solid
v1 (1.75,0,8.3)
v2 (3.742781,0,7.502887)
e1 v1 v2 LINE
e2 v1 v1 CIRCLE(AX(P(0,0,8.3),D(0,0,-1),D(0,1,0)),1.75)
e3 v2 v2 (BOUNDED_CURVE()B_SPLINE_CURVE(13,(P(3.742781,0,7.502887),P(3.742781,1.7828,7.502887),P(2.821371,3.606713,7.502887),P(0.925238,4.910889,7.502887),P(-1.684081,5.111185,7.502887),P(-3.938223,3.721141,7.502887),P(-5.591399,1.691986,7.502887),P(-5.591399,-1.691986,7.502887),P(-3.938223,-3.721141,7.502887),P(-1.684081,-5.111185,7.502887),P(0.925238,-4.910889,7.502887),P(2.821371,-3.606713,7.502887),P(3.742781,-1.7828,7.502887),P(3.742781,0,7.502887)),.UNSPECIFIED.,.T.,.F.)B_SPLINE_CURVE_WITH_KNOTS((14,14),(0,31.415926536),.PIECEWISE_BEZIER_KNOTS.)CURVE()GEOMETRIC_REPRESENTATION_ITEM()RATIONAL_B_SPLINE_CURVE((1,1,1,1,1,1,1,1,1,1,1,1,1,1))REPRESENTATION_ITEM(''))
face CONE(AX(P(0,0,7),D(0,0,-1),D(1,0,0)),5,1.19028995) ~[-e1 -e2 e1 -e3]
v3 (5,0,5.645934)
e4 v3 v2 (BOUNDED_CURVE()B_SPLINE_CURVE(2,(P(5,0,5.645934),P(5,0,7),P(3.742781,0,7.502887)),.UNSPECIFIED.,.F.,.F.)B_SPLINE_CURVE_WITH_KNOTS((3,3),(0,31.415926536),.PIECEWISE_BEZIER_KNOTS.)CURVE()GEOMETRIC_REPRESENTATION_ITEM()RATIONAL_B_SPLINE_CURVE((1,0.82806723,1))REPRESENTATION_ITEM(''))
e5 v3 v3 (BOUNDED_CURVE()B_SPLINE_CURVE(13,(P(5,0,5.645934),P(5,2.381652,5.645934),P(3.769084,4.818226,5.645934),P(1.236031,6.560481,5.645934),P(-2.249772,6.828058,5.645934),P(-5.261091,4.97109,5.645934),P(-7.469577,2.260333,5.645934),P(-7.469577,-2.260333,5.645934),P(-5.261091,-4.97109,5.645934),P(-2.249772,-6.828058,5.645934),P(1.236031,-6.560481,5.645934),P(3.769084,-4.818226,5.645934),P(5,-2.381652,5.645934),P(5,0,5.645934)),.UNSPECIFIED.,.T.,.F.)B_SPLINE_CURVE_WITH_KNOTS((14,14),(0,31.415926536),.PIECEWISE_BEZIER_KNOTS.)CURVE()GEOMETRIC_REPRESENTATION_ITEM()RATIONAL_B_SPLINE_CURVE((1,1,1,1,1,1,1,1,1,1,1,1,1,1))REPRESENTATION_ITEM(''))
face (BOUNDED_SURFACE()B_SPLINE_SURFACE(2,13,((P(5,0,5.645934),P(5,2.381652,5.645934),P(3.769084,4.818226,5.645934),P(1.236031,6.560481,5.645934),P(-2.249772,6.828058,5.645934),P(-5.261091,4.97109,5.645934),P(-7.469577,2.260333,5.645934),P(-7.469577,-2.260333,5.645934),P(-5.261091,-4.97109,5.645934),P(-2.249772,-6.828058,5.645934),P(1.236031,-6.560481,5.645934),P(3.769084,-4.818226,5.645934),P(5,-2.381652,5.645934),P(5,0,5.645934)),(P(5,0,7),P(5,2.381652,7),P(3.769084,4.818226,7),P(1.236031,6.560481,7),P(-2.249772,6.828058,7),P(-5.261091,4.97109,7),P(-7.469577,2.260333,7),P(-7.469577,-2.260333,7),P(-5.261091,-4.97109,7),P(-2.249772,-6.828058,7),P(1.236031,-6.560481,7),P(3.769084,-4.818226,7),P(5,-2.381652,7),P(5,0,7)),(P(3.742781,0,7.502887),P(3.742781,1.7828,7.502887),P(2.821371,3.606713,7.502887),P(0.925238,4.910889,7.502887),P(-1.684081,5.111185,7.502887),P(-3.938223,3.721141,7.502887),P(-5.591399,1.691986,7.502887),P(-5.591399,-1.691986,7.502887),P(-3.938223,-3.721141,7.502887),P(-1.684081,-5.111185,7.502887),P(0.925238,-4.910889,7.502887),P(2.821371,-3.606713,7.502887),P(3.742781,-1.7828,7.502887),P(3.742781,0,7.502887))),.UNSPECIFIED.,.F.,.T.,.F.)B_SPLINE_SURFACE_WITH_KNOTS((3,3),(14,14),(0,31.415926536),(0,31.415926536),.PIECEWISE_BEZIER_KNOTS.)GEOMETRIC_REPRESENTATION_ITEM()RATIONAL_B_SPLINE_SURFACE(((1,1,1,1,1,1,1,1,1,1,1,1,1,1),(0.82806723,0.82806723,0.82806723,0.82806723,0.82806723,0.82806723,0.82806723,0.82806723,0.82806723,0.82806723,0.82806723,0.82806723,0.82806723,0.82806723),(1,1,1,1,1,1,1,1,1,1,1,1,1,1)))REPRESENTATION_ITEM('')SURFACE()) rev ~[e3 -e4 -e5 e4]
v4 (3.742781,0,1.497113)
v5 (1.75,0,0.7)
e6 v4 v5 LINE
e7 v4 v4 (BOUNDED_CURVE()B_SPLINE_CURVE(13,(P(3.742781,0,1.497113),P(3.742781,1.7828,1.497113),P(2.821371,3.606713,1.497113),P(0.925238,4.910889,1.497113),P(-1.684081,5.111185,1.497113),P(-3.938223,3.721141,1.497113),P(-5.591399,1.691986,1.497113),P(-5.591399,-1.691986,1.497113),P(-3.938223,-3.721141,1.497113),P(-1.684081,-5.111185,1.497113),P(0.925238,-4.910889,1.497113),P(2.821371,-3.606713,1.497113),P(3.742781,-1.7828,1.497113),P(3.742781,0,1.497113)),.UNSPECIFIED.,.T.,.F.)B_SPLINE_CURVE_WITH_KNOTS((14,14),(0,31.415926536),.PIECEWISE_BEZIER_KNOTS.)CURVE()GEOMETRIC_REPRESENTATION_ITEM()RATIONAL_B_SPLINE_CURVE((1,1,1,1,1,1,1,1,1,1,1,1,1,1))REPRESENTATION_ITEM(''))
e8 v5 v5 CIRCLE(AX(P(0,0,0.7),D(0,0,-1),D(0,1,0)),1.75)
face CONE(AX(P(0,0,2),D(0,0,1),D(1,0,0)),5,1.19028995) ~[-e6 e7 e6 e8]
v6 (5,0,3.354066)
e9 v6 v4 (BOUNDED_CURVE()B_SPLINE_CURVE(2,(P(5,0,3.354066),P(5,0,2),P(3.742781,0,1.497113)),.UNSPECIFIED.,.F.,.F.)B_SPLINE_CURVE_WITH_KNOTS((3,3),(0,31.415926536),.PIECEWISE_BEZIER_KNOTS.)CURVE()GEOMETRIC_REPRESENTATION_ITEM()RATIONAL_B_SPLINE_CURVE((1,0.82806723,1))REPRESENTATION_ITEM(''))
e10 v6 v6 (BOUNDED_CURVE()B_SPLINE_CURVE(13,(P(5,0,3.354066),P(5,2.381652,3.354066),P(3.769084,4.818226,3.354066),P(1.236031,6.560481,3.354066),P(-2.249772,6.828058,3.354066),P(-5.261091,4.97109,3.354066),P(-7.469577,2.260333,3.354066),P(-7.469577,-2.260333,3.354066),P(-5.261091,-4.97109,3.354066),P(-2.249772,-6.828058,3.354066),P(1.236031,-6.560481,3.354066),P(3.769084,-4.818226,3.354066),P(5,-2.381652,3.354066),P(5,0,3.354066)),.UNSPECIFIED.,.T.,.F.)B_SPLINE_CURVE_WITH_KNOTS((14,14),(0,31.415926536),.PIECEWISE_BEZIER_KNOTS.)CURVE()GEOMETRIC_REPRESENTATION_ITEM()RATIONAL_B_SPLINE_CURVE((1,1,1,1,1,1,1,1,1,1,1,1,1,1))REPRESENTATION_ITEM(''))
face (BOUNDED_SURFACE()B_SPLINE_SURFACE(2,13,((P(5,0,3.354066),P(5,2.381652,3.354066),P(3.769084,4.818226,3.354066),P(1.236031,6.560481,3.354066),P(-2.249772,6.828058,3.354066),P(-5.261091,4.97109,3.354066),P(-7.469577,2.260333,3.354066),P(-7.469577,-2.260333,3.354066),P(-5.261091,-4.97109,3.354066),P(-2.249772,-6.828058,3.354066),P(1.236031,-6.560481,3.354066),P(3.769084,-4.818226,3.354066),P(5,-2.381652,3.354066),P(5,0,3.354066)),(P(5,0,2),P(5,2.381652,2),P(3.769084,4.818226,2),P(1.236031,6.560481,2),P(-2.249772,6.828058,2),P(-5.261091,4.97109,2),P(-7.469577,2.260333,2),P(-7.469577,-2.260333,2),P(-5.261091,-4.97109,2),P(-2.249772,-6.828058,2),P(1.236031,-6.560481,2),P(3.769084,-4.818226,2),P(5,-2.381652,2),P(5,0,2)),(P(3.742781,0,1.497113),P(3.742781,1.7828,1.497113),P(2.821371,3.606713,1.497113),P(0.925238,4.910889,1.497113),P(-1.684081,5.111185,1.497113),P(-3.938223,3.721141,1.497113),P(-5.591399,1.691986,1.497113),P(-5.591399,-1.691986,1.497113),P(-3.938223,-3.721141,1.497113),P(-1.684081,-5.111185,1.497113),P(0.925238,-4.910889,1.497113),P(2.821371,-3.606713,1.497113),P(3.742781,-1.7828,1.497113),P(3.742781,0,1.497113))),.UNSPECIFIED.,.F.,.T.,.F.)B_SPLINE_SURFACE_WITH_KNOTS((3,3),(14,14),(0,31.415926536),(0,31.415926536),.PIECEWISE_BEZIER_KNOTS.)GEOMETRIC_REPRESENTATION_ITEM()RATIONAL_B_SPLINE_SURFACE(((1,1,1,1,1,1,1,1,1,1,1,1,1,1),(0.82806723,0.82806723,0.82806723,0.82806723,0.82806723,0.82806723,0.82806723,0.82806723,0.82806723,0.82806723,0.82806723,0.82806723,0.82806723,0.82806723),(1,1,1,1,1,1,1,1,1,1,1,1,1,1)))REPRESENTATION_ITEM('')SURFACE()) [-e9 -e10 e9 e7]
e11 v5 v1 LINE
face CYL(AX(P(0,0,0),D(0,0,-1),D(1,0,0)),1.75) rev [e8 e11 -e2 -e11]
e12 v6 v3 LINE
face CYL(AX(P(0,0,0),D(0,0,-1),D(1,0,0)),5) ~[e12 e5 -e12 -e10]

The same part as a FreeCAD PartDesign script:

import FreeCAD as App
import Part
import Sketcher
from FreeCAD import Vector
Q = App.Units.Quantity


def edges_at(feature, points):
    """Names of the edges that pass closest to the given points."""
    edges = feature.Shape.Edges
    near = lambda p: min(range(len(edges)), key=lambda i: edges[i].distToShape(Part.Vertex(*p))[0])
    return sorted({f"Edge{near(p) + 1}" for p in points})

doc = App.newDocument("Part")
body = doc.addObject("PartDesign::Body", "Body")

sketch1 = doc.addObject("Sketcher::SketchObject", "Sketch")
body.addObject(sketch1)
sketch1.AttachmentSupport = (doc.XY_Plane, [""])
sketch1.MapMode = "FlatFace"
sketch1.addGeometry(Part.Circle(Vector(0, 0, 0), Vector(0, 0, 1), 5), False)
sketch1.addConstraint([
    Sketcher.Constraint("Coincident", 0, 3, -1, 1),
    Sketcher.Constraint("Diameter", 0, Q("10 mm")),
])
pad1 = doc.addObject("PartDesign::Pad", "Pad")
body.addObject(pad1)
pad1.Profile = sketch1
pad1.Length = 9
doc.recompute()

chamfer = doc.addObject("PartDesign::Chamfer", "Chamfer")
body.addObject(chamfer)
chamfer.Base = (pad1, edges_at(pad1, [(-5, 0, 9)]))
chamfer.ChamferType = "Two distances"
chamfer.Size = 5
chamfer.Size2 = 2
chamfer.FlipDirection = True
doc.recompute()

chamfer2 = doc.addObject("PartDesign::Chamfer", "Chamfer001")
body.addObject(chamfer2)
chamfer2.Base = (chamfer, edges_at(chamfer, [(-5, 0, 0)]))
chamfer2.ChamferType = "Two distances"
chamfer2.Size = 2
chamfer2.Size2 = 5

sketch2 = doc.addObject("Sketcher::SketchObject", "Sketch001")
body.addObject(sketch2)
sketch2.AttachmentSupport = (doc.XY_Plane, [""])
sketch2.MapMode = "FlatFace"
sketch2.addGeometry(Part.Circle(Vector(0, 0, 0), Vector(0, 0, 1), 1.8), False)
sketch2.addConstraint([
    Sketcher.Constraint("Coincident", 0, 3, -1, 1),
    Sketcher.Constraint("Diameter", 0, Q("3.5 mm")),
])
pocket1 = doc.addObject("PartDesign::Pocket", "Pocket")
body.addObject(pocket1)
pocket1.Profile = sketch2
pocket1.Length = 10
pocket1.Reversed = True
doc.recompute()

fillet = doc.addObject("PartDesign::Fillet", "Fillet")
body.addObject(fillet)
fillet.Base = (pocket1, edges_at(pocket1, [(-5, 0, 2), (-5, 0, 7)]))
fillet.Radius = 2

doc.recompute()
